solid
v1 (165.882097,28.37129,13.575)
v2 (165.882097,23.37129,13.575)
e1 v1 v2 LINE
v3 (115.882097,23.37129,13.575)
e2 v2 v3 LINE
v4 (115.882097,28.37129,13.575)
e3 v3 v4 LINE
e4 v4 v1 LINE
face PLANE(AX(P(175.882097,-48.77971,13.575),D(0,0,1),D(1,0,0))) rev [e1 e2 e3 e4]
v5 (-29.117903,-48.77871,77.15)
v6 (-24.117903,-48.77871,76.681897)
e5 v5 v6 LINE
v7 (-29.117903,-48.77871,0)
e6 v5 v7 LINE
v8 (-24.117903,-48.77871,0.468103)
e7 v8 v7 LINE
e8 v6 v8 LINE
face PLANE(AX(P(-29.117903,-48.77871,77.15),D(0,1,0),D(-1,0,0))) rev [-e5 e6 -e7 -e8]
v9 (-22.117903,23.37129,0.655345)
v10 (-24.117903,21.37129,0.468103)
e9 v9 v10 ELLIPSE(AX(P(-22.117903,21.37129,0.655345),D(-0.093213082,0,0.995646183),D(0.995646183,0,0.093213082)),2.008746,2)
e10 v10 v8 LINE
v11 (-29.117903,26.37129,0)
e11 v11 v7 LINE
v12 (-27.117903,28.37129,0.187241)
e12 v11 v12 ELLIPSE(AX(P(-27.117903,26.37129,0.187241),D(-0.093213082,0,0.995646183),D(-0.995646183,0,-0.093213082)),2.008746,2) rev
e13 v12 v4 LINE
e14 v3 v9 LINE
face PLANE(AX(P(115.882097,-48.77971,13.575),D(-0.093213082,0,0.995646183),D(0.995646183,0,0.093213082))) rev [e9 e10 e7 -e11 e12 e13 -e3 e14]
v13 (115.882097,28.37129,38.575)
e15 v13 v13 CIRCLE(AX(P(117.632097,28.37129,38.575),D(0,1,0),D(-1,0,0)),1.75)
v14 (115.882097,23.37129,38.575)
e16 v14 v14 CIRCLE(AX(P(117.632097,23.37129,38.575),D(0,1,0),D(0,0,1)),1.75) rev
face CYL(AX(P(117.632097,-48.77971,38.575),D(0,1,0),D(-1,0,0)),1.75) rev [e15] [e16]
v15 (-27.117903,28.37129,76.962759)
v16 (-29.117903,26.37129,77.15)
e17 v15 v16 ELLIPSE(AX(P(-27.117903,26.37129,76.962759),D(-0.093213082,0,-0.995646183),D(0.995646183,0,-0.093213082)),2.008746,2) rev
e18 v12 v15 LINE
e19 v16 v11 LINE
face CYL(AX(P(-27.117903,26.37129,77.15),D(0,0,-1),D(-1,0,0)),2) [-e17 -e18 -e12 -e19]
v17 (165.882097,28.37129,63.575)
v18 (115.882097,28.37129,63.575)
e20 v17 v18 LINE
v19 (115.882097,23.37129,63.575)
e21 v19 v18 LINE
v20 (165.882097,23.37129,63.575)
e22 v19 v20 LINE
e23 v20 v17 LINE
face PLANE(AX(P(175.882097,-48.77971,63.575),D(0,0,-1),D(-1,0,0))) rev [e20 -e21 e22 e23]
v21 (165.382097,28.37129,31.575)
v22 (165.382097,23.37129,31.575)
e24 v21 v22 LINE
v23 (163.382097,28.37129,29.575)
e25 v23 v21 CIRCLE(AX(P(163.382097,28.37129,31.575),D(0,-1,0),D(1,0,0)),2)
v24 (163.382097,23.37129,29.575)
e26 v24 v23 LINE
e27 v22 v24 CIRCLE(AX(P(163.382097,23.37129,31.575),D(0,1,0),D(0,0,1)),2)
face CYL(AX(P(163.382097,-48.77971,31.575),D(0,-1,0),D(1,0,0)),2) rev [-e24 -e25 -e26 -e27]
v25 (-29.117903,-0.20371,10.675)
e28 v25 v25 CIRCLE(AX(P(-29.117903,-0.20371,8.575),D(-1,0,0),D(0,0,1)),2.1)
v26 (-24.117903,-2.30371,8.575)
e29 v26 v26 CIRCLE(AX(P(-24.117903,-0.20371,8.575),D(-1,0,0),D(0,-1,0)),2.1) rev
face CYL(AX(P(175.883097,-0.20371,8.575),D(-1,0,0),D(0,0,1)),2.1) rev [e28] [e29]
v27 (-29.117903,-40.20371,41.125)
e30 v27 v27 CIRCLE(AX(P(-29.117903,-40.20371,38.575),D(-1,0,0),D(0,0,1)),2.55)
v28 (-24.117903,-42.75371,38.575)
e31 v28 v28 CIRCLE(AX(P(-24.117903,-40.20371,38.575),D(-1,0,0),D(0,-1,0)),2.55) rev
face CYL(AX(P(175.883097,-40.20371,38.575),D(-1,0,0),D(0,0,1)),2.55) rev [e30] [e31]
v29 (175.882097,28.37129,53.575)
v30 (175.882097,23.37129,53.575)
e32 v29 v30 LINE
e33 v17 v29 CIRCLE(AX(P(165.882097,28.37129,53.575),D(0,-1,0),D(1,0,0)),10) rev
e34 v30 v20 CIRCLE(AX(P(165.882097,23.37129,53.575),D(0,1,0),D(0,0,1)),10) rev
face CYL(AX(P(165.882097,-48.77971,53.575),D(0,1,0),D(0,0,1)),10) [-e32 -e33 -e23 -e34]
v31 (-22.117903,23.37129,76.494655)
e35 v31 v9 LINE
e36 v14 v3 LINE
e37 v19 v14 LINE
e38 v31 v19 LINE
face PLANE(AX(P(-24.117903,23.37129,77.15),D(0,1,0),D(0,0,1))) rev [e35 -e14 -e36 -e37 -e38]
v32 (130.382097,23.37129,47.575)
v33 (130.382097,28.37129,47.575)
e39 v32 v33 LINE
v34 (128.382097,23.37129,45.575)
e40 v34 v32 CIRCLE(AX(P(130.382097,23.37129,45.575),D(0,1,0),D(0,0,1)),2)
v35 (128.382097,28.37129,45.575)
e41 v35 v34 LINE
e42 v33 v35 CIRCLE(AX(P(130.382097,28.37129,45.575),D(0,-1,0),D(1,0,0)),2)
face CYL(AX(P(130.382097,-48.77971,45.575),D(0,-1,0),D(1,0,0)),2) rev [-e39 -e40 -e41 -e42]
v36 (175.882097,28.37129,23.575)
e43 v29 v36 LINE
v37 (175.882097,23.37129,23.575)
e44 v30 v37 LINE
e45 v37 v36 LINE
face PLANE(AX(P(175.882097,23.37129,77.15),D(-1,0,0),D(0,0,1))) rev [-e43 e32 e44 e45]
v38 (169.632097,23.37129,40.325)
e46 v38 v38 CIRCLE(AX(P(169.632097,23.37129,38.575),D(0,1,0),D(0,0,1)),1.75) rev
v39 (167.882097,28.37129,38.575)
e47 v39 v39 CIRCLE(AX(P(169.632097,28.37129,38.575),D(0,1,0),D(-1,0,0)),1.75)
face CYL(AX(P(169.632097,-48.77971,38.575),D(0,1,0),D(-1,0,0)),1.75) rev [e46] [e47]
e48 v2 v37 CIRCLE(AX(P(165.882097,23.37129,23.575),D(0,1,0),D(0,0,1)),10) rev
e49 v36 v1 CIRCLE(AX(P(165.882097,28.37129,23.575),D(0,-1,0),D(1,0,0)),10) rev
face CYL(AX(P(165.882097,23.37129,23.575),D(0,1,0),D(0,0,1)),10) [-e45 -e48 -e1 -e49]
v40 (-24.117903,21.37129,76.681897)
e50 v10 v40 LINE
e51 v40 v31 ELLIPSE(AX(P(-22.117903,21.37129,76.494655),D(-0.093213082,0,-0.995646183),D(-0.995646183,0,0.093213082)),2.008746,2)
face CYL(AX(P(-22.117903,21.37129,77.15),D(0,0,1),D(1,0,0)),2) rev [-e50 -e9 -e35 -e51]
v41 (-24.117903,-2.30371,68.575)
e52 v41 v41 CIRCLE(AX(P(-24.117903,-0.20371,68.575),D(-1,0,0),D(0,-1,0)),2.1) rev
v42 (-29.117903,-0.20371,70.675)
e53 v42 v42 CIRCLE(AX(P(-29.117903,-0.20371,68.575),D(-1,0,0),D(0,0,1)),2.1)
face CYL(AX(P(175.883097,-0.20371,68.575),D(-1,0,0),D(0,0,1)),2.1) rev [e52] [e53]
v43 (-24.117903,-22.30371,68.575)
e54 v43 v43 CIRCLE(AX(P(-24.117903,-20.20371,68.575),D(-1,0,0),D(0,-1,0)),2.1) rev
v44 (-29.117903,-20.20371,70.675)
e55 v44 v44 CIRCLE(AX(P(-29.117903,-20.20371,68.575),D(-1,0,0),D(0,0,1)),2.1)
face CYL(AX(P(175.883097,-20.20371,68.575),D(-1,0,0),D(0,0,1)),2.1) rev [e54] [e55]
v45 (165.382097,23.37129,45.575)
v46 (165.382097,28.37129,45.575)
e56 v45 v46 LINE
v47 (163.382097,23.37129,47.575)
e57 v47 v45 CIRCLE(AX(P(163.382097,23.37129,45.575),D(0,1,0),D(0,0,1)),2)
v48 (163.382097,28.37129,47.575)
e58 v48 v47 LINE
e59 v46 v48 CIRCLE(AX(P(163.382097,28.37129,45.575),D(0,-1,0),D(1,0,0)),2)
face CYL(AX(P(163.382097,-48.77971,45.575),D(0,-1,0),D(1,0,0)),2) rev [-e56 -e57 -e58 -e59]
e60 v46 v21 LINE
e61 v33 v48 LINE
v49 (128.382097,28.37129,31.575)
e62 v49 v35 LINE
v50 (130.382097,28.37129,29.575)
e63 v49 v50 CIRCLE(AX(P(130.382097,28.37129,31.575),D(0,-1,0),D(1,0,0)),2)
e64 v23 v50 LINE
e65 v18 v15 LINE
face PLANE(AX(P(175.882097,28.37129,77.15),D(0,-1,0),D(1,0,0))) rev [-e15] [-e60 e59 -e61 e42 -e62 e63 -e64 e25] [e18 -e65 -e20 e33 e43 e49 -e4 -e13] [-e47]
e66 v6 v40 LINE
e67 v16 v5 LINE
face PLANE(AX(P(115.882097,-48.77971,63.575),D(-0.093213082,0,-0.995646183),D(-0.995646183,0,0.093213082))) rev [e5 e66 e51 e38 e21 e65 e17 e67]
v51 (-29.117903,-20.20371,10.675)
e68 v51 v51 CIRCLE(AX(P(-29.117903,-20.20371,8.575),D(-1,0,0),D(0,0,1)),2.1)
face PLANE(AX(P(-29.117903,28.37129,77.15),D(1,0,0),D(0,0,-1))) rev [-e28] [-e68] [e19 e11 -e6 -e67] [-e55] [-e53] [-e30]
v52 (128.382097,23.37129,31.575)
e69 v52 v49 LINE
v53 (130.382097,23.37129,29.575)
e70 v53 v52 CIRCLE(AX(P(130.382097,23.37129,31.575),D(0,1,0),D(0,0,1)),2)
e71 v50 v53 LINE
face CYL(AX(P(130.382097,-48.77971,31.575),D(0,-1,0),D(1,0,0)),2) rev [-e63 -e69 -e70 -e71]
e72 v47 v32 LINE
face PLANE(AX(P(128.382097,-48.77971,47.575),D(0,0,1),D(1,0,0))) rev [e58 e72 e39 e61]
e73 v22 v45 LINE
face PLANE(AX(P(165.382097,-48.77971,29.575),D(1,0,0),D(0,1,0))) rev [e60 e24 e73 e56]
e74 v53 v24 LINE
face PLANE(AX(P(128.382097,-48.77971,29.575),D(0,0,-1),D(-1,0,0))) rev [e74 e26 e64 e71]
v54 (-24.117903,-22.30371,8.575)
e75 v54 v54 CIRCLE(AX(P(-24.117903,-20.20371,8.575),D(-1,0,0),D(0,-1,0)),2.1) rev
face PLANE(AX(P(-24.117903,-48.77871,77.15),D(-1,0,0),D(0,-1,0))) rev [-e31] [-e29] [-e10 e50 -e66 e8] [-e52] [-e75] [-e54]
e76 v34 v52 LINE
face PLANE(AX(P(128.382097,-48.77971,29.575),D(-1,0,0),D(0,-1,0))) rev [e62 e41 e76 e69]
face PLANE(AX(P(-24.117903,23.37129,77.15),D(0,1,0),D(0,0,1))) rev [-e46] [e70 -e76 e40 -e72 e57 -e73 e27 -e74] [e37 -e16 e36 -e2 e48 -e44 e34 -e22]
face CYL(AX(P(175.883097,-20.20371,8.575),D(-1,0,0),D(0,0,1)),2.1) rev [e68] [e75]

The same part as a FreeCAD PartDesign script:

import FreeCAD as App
import Part
import Sketcher


def edges_at(feature, points):
    """Names of the edges that pass closest to the given points."""
    edges = feature.Shape.Edges
    near = lambda p: min(range(len(edges)), key=lambda i: edges[i].distToShape(Part.Vertex(*p))[0])
    return sorted({f"Edge{near(p) + 1}" for p in points})


def add_polygon(sketch, points):
    """Adds a closed chain of lines whose ends are joined by coincident constraints."""
    first, n = sketch.GeometryCount, len(points)
    for a, b in zip(points, points[1:] + points[:1]):
        sketch.addGeometry(Part.LineSegment(App.Vector(*a, 0), App.Vector(*b, 0)), False)
    for i in range(n):
        sketch.addConstraint(Sketcher.Constraint("Coincident", first + i, 2, first + (i + 1) % n, 1))

doc = App.newDocument("Part")
body = doc.addObject("PartDesign::Body", "Body")

# Sketch on XY plane
sketch1 = body.newObject("Sketcher::SketchObject", "Sketch")
sketch1.AttachmentSupport = (doc.getObject("XY_Plane"), [""])
sketch1.MapMode = "FlatFace"
add_polygon(sketch1, [(-29, 28), (-29, -49), (-24, -49), (-24, 23), (176, 23), (176, 28)])  # lines 0-5
sketch1.addConstraint(Sketcher.Constraint("Vertical", 0))
sketch1.addConstraint(Sketcher.Constraint("Horizontal", 1))
sketch1.addConstraint(Sketcher.Constraint("Vertical", 2))
sketch1.addConstraint(Sketcher.Constraint("Horizontal", 3))
sketch1.addConstraint(Sketcher.Constraint("Vertical", 4))
sketch1.addConstraint(Sketcher.Constraint("Horizontal", 5))
sketch1.addConstraint(Sketcher.Constraint("Equal", 1, 4))
sketch1.addConstraint(Sketcher.Constraint("DistanceX", 1, 1, 1, 2, 5.0))
sketch1.addConstraint(Sketcher.Constraint("DistanceX", 3, 1, 3, 2, 200.0))
sketch1.addConstraint(Sketcher.Constraint("DistanceY", 0, 2, 0, 1, 77.15))
sketch1.addConstraint(Sketcher.Constraint("DistanceY", 0, 2, -1, 1, 48.77871))
sketch1.addConstraint(Sketcher.Constraint("DistanceX", 0, 2, -1, 1, 29.117903))
pad1 = body.newObject("PartDesign::Pad", "Pad")
pad1.Profile = sketch1
pad1.Length = 77.15

# Sketch on XZ plane
sketch2 = body.newObject("Sketcher::SketchObject", "Sketch001")
sketch2.AttachmentSupport = (doc.getObject("XZ_Plane"), [""])
sketch2.MapMode = "FlatFace"
sketch2.AttachmentOffset = App.Placement(App.Vector(0, 0, -28.37129), App.Rotation())
sketch2.addGeometry(Part.Circle(App.Vector(169.6, 38.6, 0), App.Vector(0, 0, 1), 1.8), False)
sketch2.addConstraint(Sketcher.Constraint("Diameter", 0, 3.5))
sketch2.addConstraint(Sketcher.Constraint("DistanceY", -1, 1, 0, 3, 38.575))
sketch2.addConstraint(Sketcher.Constraint("DistanceX", -1, 1, 0, 3, 169.632097))
pocket1 = body.newObject("PartDesign::Pocket", "Pocket")
pocket1.Profile = sketch2
pocket1.Type = "UpToFirst"
pocket1.Reversed = True

# Sketch on XZ plane
sketch3 = body.newObject("Sketcher::SketchObject", "Sketch002")
sketch3.AttachmentSupport = (doc.getObject("XZ_Plane"), [""])
sketch3.MapMode = "FlatFace"
sketch3.AttachmentOffset = App.Placement(App.Vector(0, 0, -28.37129), App.Rotation())
sketch3.addGeometry(Part.Circle(App.Vector(117.6, 38.6, 0), App.Vector(0, 0, 1), 1.8), False)
sketch3.addConstraint(Sketcher.Constraint("Diameter", 0, 3.5))
sketch3.addConstraint(Sketcher.Constraint("DistanceY", -1, 1, 0, 3, 38.575))
sketch3.addConstraint(Sketcher.Constraint("DistanceX", -1, 1, 0, 3, 117.632097))
pocket2 = body.newObject("PartDesign::Pocket", "Pocket001")
pocket2.Profile = sketch3
pocket2.Type = "UpToFirst"
pocket2.Reversed = True

# Sketch on XZ plane
sketch4 = body.newObject("Sketcher::SketchObject", "Sketch003")
sketch4.AttachmentSupport = (doc.getObject("XZ_Plane"), [""])
sketch4.MapMode = "FlatFace"
sketch4.AttachmentOffset = App.Placement(App.Vector(0, 0, -28.37129), App.Rotation())
add_polygon(sketch4, [(116, 14), (176, 14), (176, 0), (-29, 0)])  # lines 0-3
sketch4.addConstraint(Sketcher.Constraint("Horizontal", 0))
sketch4.addConstraint(Sketcher.Constraint("Vertical", 1))
sketch4.addConstraint(Sketcher.Constraint("Horizontal", 2))
sketch4.addConstraint(Sketcher.Constraint("PointOnObject", 1, 2, -1))
sketch4.addConstraint(Sketcher.Constraint("DistanceX", 0, 1, 0, 2, 60.0))
sketch4.addConstraint(Sketcher.Constraint("DistanceX", 2, 2, 2, 1, 205.0))
sketch4.addConstraint(Sketcher.Constraint("DistanceY", 1, 2, 1, 1, 13.575))
sketch4.addConstraint(Sketcher.Constraint("DistanceX", -1, 1, 0, 2, 175.882097))
pocket3 = body.newObject("PartDesign::Pocket", "Pocket002")
pocket3.Profile = sketch4
pocket3.Length = 77.15
pocket3.Reversed = True

# Sketch on XZ plane
sketch5 = body.newObject("Sketcher::SketchObject", "Sketch004")
sketch5.AttachmentSupport = (doc.getObject("XZ_Plane"), [""])
sketch5.MapMode = "FlatFace"
sketch5.AttachmentOffset = App.Placement(App.Vector(0, 0, -28.37129), App.Rotation())
add_polygon(sketch5, [(176, 64), (116, 64), (-29, 77), (176, 77)])  # lines 0-3
sketch5.addConstraint(Sketcher.Constraint("Horizontal", 0))
sketch5.addConstraint(Sketcher.Constraint("Horizontal", 2))
sketch5.addConstraint(Sketcher.Constraint("Vertical", 3))
sketch5.addConstraint(Sketcher.Constraint("DistanceX", 0, 2, 0, 1, 60.0))
sketch5.addConstraint(Sketcher.Constraint("DistanceX", 2, 1, 2, 2, 205.0))
sketch5.addConstraint(Sketcher.Constraint("DistanceY", 3, 2, 3, 1, 13.575))
sketch5.addConstraint(Sketcher.Constraint("DistanceY", -1, 1, 1, 2, 77.15))
sketch5.addConstraint(Sketcher.Constraint("DistanceX", -1, 1, 0, 2, 115.882097))
pocket4 = body.newObject("PartDesign::Pocket", "Pocket003")
pocket4.Profile = sketch5
pocket4.Length = 77.15
pocket4.Reversed = True

# Sketch on XZ plane
sketch6 = body.newObject("Sketcher::SketchObject", "Sketch005")
sketch6.AttachmentSupport = (doc.getObject("XZ_Plane"), [""])
sketch6.MapMode = "FlatFace"
sketch6.AttachmentOffset = App.Placement(App.Vector(0, 0, -28.37129), App.Rotation())
add_polygon(sketch6, [(128, 30), (128, 48), (165, 48), (165, 30)])  # lines 0-3
sketch6.addConstraint(Sketcher.Constraint("Vertical", 0))
sketch6.addConstraint(Sketcher.Constraint("Horizontal", 1))
sketch6.addConstraint(Sketcher.Constraint("Vertical", 2))
sketch6.addConstraint(Sketcher.Constraint("Horizontal", 3))
sketch6.addConstraint(Sketcher.Constraint("DistanceX", 1, 1, 1, 2, 37.0))
sketch6.addConstraint(Sketcher.Constraint("DistanceY", 0, 1, 0, 2, 18.0))
sketch6.addConstraint(Sketcher.Constraint("DistanceY", -1, 1, 0, 2, 47.575))
sketch6.addConstraint(Sketcher.Constraint("DistanceX", -1, 1, 0, 2, 128.382097))
pocket5 = body.newObject("PartDesign::Pocket", "Pocket004")
pocket5.Profile = sketch6
pocket5.Type = "UpToFirst"
pocket5.Reversed = True
doc.recompute()

fillet = body.newObject("PartDesign::Fillet", "Fillet")
fillet.Base = (pocket5, edges_at(pocket5, [
    (-29.118, 28.371, 38.575),
    (-24.118, 23.371, 38.575),
    (128.382, 25.871, 47.575),
    (128.382, 25.871, 29.575),
    (165.382, 25.871, 29.575),
    (165.382, 25.871, 47.575),
]))
fillet.Radius = 2
doc.recompute()

fillet2 = body.newObject("PartDesign::Fillet", "Fillet001")
fillet2.Base = (fillet, edges_at(fillet, [(175.882, 25.871, 13.575), (175.882, 25.871, 63.575)]))
fillet2.Radius = 10

# Sketch on YZ plane
sketch7 = body.newObject("Sketcher::SketchObject", "Sketch006")
sketch7.AttachmentSupport = (doc.getObject("YZ_Plane"), [""])
sketch7.MapMode = "FlatFace"
sketch7.AttachmentOffset = App.Placement(App.Vector(0, 0, -29.117903), App.Rotation())
add_polygon(sketch7, [(52.6, -24.2), (-73, -24.2), (-73, 101.4), (52.6, 101.4)])  # lines 0-3
add_polygon(sketch7, [(-48.8, 77.2), (-48.8, 0), (28.4, 0), (28.4, 77.2)])  # lines 4-7
sketch7.addGeometry(Part.Circle(App.Vector(-20.2, 8.6, 0), App.Vector(0, 0, 1), 2.1), False)  # 8
sketch7.addGeometry(Part.Circle(App.Vector(-0.2, 8.6, 0), App.Vector(0, 0, 1), 2.1), False)  # 9
sketch7.addGeometry(Part.Circle(App.Vector(-40.2, 38.6, 0), App.Vector(0, 0, 1), 2.5), False)  # 10
sketch7.addGeometry(Part.Circle(App.Vector(-20.2, 68.6, 0), App.Vector(0, 0, 1), 2.1), False)  # 11
sketch7.addGeometry(Part.Circle(App.Vector(-0.2, 68.6, 0), App.Vector(0, 0, 1), 2.1), False)  # 12
sketch7.addConstraint(Sketcher.Constraint("Horizontal", 0))
sketch7.addConstraint(Sketcher.Constraint("Vertical", 1))
sketch7.addConstraint(Sketcher.Constraint("Horizontal", 2))
sketch7.addConstraint(Sketcher.Constraint("Vertical", 3))
sketch7.addConstraint(Sketcher.Constraint("Vertical", 4))
sketch7.addConstraint(Sketcher.Constraint("Horizontal", 5))
sketch7.addConstraint(Sketcher.Constraint("Vertical", 6))
sketch7.addConstraint(Sketcher.Constraint("Horizontal", 7))
sketch7.addConstraint(Sketcher.Constraint("Equal", 8, 9))
sketch7.addConstraint(Sketcher.Constraint("Equal", 9, 11))
sketch7.addConstraint(Sketcher.Constraint("Equal", 11, 12))
sketch7.addConstraint(Sketcher.Constraint("PointOnObject", 4, 2, -1))
sketch7.addConstraint(Sketcher.Constraint("Horizontal", 8, 3, 9, 3))
sketch7.addConstraint(Sketcher.Constraint("Horizontal", 11, 3, 12, 3))
sketch7.addConstraint(Sketcher.Constraint("Vertical", 8, 3, 11, 3))
sketch7.addConstraint(Sketcher.Constraint("Vertical", 9, 3, 12, 3))
sketch7.addConstraint(Sketcher.Constraint("Equal", 2, 1))
sketch7.addConstraint(Sketcher.Constraint("Equal", 7, 4))
sketch7.addConstraint(Sketcher.Constraint("Diameter", 8, 4.2))
sketch7.addConstraint(Sketcher.Constraint("Diameter", 10, 5.1))
sketch7.addConstraint(Sketcher.Constraint("DistanceX", 8, 3, 9, 3, 20.0))
sketch7.addConstraint(Sketcher.Constraint("DistanceX", 10, 3, 8, 3, 20.0))
sketch7.addConstraint(Sketcher.Constraint("DistanceY", 8, 3, 10, 3, 30.0))
sketch7.addConstraint(Sketcher.Constraint("DistanceY", 10, 3, 11, 3, 30.0))
sketch7.addConstraint(Sketcher.Constraint("DistanceX", 5, 1, 5, 2, 77.15))
sketch7.addConstraint(Sketcher.Constraint("DistanceX", 0, 2, 0, 1, 125.596))
sketch7.addConstraint(Sketcher.Constraint("DistanceY", -1, 1, 8, 3, 8.575))
sketch7.addConstraint(Sketcher.Constraint("DistanceX", 0, 2, -1, 1, 73.002))
sketch7.addConstraint(Sketcher.Constraint("DistanceY", 0, 2, -1, 1, 24.223))
sketch7.addConstraint(Sketcher.Constraint("DistanceX", 4, 2, 8, 3, 28.575))
sketch7.addConstraint(Sketcher.Constraint("DistanceX", 8, 3, -1, 1, 20.20371))
pocket6 = body.newObject("PartDesign::Pocket", "Pocket005")
pocket6.Profile = sketch7
pocket6.Length = 5
pocket6.Reversed = True

doc.recompute()
